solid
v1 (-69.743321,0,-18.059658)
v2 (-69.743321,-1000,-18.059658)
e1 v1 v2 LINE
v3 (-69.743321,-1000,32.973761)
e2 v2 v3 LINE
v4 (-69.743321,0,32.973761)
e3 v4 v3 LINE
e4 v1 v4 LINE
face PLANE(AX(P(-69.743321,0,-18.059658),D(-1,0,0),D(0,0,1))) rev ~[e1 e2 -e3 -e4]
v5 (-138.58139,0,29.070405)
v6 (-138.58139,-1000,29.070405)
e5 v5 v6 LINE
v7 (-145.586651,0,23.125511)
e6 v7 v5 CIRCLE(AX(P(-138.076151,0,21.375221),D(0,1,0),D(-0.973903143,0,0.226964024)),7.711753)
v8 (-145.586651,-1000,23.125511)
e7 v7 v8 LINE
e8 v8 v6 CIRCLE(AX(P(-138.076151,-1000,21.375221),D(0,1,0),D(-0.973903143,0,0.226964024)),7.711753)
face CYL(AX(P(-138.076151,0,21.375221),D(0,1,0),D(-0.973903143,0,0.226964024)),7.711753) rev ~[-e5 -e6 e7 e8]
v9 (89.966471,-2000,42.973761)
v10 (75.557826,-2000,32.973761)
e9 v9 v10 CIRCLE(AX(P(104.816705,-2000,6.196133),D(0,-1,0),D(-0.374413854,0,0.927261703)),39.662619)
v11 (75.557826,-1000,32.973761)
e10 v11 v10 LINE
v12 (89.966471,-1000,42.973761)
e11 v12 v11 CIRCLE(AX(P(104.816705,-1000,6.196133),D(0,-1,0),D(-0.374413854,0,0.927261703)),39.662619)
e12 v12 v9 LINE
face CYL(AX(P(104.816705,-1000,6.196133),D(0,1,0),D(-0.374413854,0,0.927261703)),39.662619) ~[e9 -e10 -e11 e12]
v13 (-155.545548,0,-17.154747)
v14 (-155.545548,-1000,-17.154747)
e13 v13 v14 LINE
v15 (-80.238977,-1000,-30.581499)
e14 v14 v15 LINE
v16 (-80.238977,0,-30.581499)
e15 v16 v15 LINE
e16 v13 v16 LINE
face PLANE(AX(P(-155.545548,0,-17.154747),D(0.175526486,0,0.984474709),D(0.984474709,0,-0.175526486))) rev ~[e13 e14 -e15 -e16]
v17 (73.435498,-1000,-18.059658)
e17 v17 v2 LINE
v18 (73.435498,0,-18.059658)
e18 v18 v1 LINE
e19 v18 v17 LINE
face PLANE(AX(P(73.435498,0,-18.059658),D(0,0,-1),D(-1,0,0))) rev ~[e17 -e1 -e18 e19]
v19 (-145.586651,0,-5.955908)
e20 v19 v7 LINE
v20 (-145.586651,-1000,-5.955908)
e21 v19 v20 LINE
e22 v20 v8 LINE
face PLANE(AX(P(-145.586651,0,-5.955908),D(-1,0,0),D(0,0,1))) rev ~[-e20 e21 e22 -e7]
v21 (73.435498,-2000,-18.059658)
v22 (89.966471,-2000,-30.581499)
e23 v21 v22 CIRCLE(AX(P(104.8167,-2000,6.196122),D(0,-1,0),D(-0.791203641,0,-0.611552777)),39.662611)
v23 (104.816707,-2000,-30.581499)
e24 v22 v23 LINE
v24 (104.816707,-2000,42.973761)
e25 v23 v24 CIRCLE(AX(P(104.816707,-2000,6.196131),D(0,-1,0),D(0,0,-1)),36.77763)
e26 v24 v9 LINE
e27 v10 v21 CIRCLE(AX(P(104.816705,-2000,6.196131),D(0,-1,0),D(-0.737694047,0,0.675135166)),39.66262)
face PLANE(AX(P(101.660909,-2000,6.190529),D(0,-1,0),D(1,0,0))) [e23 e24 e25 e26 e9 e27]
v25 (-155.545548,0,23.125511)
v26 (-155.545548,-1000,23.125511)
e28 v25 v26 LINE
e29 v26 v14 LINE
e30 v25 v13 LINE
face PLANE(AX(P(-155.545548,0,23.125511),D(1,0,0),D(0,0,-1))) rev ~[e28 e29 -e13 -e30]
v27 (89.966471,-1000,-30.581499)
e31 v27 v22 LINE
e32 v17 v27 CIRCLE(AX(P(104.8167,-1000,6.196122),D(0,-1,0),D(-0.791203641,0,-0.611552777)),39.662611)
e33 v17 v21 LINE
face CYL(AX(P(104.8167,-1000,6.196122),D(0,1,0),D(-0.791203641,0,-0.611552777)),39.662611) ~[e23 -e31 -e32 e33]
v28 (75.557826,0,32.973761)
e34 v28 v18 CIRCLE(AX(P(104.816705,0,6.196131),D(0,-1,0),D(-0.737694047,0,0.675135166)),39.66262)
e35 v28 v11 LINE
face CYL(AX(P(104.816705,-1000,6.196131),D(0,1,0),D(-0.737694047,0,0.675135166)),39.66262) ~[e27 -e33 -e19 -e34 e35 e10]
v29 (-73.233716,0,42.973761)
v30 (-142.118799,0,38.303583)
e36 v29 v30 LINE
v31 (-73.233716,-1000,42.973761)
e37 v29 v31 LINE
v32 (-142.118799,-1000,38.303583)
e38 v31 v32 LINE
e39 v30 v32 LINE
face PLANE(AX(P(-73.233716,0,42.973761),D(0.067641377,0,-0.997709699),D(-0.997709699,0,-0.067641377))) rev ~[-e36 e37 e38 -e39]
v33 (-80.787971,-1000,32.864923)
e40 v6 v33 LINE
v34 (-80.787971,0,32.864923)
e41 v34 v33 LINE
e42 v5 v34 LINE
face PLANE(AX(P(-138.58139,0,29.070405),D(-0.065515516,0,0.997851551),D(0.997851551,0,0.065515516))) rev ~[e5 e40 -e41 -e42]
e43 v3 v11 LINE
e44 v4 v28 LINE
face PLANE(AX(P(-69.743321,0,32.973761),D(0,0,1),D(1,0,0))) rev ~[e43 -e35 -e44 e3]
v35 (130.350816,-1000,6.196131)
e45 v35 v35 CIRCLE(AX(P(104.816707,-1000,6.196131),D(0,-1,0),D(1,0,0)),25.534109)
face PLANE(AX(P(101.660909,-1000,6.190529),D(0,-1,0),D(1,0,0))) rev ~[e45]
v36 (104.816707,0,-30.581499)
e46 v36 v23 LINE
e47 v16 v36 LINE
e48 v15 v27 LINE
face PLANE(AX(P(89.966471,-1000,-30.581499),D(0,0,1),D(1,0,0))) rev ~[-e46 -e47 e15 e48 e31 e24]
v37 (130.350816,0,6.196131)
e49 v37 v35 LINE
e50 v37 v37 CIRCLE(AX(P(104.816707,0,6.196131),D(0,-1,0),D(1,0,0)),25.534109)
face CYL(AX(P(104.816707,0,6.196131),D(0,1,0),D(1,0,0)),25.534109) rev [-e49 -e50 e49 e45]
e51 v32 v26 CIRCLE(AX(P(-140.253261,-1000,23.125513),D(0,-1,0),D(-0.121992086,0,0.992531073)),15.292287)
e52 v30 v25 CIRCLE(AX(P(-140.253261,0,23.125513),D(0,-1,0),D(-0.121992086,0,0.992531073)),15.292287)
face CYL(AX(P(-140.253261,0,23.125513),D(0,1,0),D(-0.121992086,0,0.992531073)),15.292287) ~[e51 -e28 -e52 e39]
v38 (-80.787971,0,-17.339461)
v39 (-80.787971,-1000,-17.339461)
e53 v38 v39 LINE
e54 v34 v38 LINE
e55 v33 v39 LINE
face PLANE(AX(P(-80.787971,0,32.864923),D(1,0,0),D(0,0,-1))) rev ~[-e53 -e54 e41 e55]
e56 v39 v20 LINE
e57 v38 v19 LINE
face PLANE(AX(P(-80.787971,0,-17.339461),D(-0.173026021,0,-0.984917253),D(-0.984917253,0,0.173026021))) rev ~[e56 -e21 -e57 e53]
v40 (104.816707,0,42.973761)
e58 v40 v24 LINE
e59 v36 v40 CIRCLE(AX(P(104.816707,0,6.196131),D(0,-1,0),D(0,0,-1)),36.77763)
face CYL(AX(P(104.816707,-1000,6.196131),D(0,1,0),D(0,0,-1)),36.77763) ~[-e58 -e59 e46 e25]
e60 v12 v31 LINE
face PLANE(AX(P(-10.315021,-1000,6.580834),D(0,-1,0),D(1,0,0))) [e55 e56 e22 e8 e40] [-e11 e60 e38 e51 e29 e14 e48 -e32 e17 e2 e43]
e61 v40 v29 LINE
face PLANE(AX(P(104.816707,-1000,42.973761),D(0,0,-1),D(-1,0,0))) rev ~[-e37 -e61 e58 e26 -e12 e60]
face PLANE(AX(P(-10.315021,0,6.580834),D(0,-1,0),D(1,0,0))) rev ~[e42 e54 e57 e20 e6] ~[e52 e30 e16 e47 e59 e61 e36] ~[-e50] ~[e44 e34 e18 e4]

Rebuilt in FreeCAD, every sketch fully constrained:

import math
import FreeCAD as App
import Part
import Sketcher

doc = App.newDocument("Part")
body = doc.addObject("PartDesign::Body", "Body")

# Sketch on XZ plane
sketch1 = body.newObject("Sketcher::SketchObject", "Sketch")
sketch1.AttachmentSupport = (doc.getObject("XZ_Plane"), [""])
sketch1.MapMode = "FlatFace"
sketch1.addGeometry(Part.LineSegment(App.Vector(105, 43, 0), App.Vector(-73, 43, 0)), False)
sketch1.addGeometry(Part.LineSegment(App.Vector(-73, 43, 0), App.Vector(-142, 38, 0)), False)
sketch1.addGeometry(Part.ArcOfCircle(Part.Circle(App.Vector(-140, 23, 0), App.Vector(0, 0, 1), 15), math.radians(97), math.radians(180)), False)
sketch1.addGeometry(Part.LineSegment(App.Vector(-156, 23, 0), App.Vector(-156, -17, 0)), False)
sketch1.addGeometry(Part.LineSegment(App.Vector(-156, -17, 0), App.Vector(-80, -31, 0)), False)
sketch1.addGeometry(Part.LineSegment(App.Vector(-80, -31, 0), App.Vector(105, -31, 0)), False)
sketch1.addGeometry(Part.ArcOfCircle(Part.Circle(App.Vector(105, 6, 0), App.Vector(0, 0, 1), 37), math.radians(-90), math.radians(90)), False)
sketch1.addGeometry(Part.Circle(App.Vector(105, 6, 0), App.Vector(0, 0, 1), 26), False)
sketch1.addGeometry(Part.LineSegment(App.Vector(-81, -17, 0), App.Vector(-146, -6, 0)), False)
sketch1.addGeometry(Part.LineSegment(App.Vector(-146, -6, 0), App.Vector(-146, 23, 0)), False)
sketch1.addGeometry(Part.ArcOfCircle(Part.Circle(App.Vector(-138, 21, 0), App.Vector(0, 0, 1), 8), math.radians(94), math.radians(167)), False)
sketch1.addGeometry(Part.LineSegment(App.Vector(-139, 29, 0), App.Vector(-81, 33, 0)), False)
sketch1.addGeometry(Part.LineSegment(App.Vector(-81, 33, 0), App.Vector(-81, -17, 0)), False)
sketch1.addGeometry(Part.LineSegment(App.Vector(-70, -18, 0), App.Vector(-70, 33, 0)), False)
sketch1.addGeometry(Part.LineSegment(App.Vector(-70, 33, 0), App.Vector(76, 33, 0)), False)
sketch1.addGeometry(Part.ArcOfCircle(Part.Circle(App.Vector(105, 6, 0), App.Vector(0, 0, 1), 40), math.radians(138), math.radians(218)), False)
sketch1.addGeometry(Part.LineSegment(App.Vector(73, -18, 0), App.Vector(-70, -18, 0)), False)
sketch1.addConstraint(Sketcher.Constraint("Coincident", 0, 2, 1, 1))
sketch1.addConstraint(Sketcher.Constraint("Coincident", 1, 2, 2, 1))
sketch1.addConstraint(Sketcher.Constraint("Tangent", 2, 2, 3, 1))
sketch1.addConstraint(Sketcher.Constraint("Coincident", 3, 2, 4, 1))
sketch1.addConstraint(Sketcher.Constraint("Coincident", 4, 2, 5, 1))
sketch1.addConstraint(Sketcher.Constraint("Tangent", 5, 2, 6, 1))
sketch1.addConstraint(Sketcher.Constraint("Tangent", 6, 2, 0, 1))
sketch1.addConstraint(Sketcher.Constraint("Coincident", 8, 2, 9, 1))
sketch1.addConstraint(Sketcher.Constraint("Coincident", 9, 2, 10, 2))
sketch1.addConstraint(Sketcher.Constraint("Tangent", 10, 1, 11, 1))
sketch1.addConstraint(Sketcher.Constraint("Coincident", 11, 2, 12, 1))
sketch1.addConstraint(Sketcher.Constraint("Coincident", 12, 2, 8, 1))
sketch1.addConstraint(Sketcher.Constraint("Coincident", 13, 2, 14, 1))
sketch1.addConstraint(Sketcher.Constraint("Coincident", 14, 2, 15, 1))
sketch1.addConstraint(Sketcher.Constraint("Coincident", 15, 2, 16, 1))
sketch1.addConstraint(Sketcher.Constraint("Coincident", 16, 2, 13, 1))
sketch1.addConstraint(Sketcher.Constraint("Horizontal", 0))
sketch1.addConstraint(Sketcher.Constraint("Vertical", 3))
sketch1.addConstraint(Sketcher.Constraint("Horizontal", 5))
sketch1.addConstraint(Sketcher.Constraint("Vertical", 9))
sketch1.addConstraint(Sketcher.Constraint("Vertical", 12))
sketch1.addConstraint(Sketcher.Constraint("Vertical", 13))
sketch1.addConstraint(Sketcher.Constraint("Horizontal", 14))
sketch1.addConstraint(Sketcher.Constraint("Horizontal", 16))
sketch1.addConstraint(Sketcher.Constraint("Coincident", 7, 3, 6, 3))
sketch1.addConstraint(Sketcher.Constraint("Coincident", 15, 3, 6, 3))
sketch1.addConstraint(Sketcher.Constraint("Horizontal", 2, 2, 9, 2))
sketch1.addConstraint(Sketcher.Constraint("DistanceY", 13, 2, 0, 2, 10.0))
sketch1.addConstraint(Sketcher.Constraint("Diameter", 7, 51.068218))
sketch1.addConstraint(Sketcher.Constraint("Radius", 6, 36.77763))
sketch1.addConstraint(Sketcher.Constraint("Radius", 15, 39.66262))
sketch1.addConstraint(Sketcher.Constraint("Radius", 2, 15.292287))
sketch1.addConstraint(Sketcher.Constraint("Radius", 10, 7.711753))
sketch1.addConstraint(Sketcher.Constraint("DistanceX", 16, 2, 16, 1, 143.178819))
sketch1.addConstraint(Sketcher.Constraint("DistanceY", 3, 2, 3, 1, 40.280258))
sketch1.addConstraint(Sketcher.Constraint("DistanceY", 9, 1, 9, 2, 29.081419))
sketch1.addConstraint(Sketcher.Constraint("DistanceY", 13, 1, 13, 2, 51.033419))
sketch1.addConstraint(Sketcher.Constraint("DistanceX", 1, 2, -1, 1, 142.118799))
sketch1.addConstraint(Sketcher.Constraint("DistanceY", 4, 2, -1, 1, 30.581499))
sketch1.addConstraint(Sketcher.Constraint("DistanceX", -1, 1, 15, 2, 73.435498))
sketch1.addConstraint(Sketcher.Constraint("DistanceX", 8, 2, 10, 3, 7.5105))
sketch1.addConstraint(Sketcher.Constraint("Distance", 8, 65.790989))
sketch1.addConstraint(Sketcher.Constraint("DistanceX", 0, 2, 0, 1, 178.050423))
sketch1.addConstraint(Sketcher.Constraint("DistanceX", 5, 1, 5, 2, 185.055684))
sketch1.addConstraint(Sketcher.Constraint("DistanceY", 12, 2, 12, 1, 50.204384))
sketch1.addConstraint(Sketcher.Constraint("DistanceX", 2, 3, -1, 1, 140.253261))
sketch1.addConstraint(Sketcher.Constraint("DistanceX", 10, 3, -1, 1, 138.076151))
sketch1.addConstraint(Sketcher.Constraint("DistanceY", -1, 1, 10, 3, 21.375221))
sketch1.addConstraint(Sketcher.Constraint("DistanceX", 10, 1, -1, 1, 138.58139))
pad1 = body.newObject("PartDesign::Pad", "Pad")
pad1.Profile = sketch1
pad1.Length = 1000

# Sketch on XZ plane
sketch2 = body.newObject("Sketcher::SketchObject", "Sketch001")
sketch2.AttachmentSupport = (doc.getObject("XZ_Plane"), [""])
sketch2.MapMode = "FlatFace"
sketch2.AttachmentOffset = App.Placement(App.Vector(0, 0, 1000), App.Rotation())
sketch2.addGeometry(Part.LineSegment(App.Vector(90, -31, 0), App.Vector(105, -31, 0)), False)
sketch2.addGeometry(Part.ArcOfCircle(Part.Circle(App.Vector(105, 6, 0), App.Vector(0, 0, 1), 37), math.radians(-90), math.radians(90)), False)
sketch2.addGeometry(Part.LineSegment(App.Vector(105, 43, 0), App.Vector(90, 43, 0)), False)
sketch2.addGeometry(Part.ArcOfCircle(Part.Circle(App.Vector(105, 6, 0), App.Vector(0, 0, 1), 40), math.radians(112), math.radians(138)), False)
sketch2.addGeometry(Part.ArcOfCircle(Part.Circle(App.Vector(105, 6, 0), App.Vector(0, 0, 1), 40), math.radians(138), math.radians(218)), False)
sketch2.addGeometry(Part.ArcOfCircle(Part.Circle(App.Vector(105, 6, 0), App.Vector(0, 0, 1), 40), math.radians(-142), math.radians(-112)), False)
sketch2.addConstraint(Sketcher.Constraint("Tangent", 0, 2, 1, 1))
sketch2.addConstraint(Sketcher.Constraint("Tangent", 1, 2, 2, 1))
sketch2.addConstraint(Sketcher.Constraint("Coincident", 2, 2, 3, 1))
sketch2.addConstraint(Sketcher.Constraint("Tangent", 3, 2, 4, 1))
sketch2.addConstraint(Sketcher.Constraint("Tangent", 4, 2, 5, 1))
sketch2.addConstraint(Sketcher.Constraint("Coincident", 5, 2, 0, 1))
sketch2.addConstraint(Sketcher.Constraint("Horizontal", 0))
sketch2.addConstraint(Sketcher.Constraint("Horizontal", 2))
sketch2.addConstraint(Sketcher.Constraint("Coincident", 3, 3, 1, 3))
sketch2.addConstraint(Sketcher.Constraint("Equal", 3, 4))
sketch2.addConstraint(Sketcher.Constraint("Vertical", 2, 2, 5, 2))
sketch2.addConstraint(Sketcher.Constraint("DistanceY", 3, 2, 2, 2, 10.0))
sketch2.addConstraint(Sketcher.Constraint("Radius", 1, 36.77763))
sketch2.addConstraint(Sketcher.Constraint("Radius", 3, 39.662619))
sketch2.addConstraint(Sketcher.Constraint("DistanceX", -1, 1, 5, 3, 104.8167))
sketch2.addConstraint(Sketcher.Constraint("DistanceY", 0, 2, -1, 1, 30.581499))
sketch2.addConstraint(Sketcher.Constraint("DistanceX", -1, 1, 4, 2, 73.435498))
pad2 = body.newObject("PartDesign::Pad", "Pad001")
pad2.Profile = sketch2
pad2.Length = 1000

doc.recompute()
